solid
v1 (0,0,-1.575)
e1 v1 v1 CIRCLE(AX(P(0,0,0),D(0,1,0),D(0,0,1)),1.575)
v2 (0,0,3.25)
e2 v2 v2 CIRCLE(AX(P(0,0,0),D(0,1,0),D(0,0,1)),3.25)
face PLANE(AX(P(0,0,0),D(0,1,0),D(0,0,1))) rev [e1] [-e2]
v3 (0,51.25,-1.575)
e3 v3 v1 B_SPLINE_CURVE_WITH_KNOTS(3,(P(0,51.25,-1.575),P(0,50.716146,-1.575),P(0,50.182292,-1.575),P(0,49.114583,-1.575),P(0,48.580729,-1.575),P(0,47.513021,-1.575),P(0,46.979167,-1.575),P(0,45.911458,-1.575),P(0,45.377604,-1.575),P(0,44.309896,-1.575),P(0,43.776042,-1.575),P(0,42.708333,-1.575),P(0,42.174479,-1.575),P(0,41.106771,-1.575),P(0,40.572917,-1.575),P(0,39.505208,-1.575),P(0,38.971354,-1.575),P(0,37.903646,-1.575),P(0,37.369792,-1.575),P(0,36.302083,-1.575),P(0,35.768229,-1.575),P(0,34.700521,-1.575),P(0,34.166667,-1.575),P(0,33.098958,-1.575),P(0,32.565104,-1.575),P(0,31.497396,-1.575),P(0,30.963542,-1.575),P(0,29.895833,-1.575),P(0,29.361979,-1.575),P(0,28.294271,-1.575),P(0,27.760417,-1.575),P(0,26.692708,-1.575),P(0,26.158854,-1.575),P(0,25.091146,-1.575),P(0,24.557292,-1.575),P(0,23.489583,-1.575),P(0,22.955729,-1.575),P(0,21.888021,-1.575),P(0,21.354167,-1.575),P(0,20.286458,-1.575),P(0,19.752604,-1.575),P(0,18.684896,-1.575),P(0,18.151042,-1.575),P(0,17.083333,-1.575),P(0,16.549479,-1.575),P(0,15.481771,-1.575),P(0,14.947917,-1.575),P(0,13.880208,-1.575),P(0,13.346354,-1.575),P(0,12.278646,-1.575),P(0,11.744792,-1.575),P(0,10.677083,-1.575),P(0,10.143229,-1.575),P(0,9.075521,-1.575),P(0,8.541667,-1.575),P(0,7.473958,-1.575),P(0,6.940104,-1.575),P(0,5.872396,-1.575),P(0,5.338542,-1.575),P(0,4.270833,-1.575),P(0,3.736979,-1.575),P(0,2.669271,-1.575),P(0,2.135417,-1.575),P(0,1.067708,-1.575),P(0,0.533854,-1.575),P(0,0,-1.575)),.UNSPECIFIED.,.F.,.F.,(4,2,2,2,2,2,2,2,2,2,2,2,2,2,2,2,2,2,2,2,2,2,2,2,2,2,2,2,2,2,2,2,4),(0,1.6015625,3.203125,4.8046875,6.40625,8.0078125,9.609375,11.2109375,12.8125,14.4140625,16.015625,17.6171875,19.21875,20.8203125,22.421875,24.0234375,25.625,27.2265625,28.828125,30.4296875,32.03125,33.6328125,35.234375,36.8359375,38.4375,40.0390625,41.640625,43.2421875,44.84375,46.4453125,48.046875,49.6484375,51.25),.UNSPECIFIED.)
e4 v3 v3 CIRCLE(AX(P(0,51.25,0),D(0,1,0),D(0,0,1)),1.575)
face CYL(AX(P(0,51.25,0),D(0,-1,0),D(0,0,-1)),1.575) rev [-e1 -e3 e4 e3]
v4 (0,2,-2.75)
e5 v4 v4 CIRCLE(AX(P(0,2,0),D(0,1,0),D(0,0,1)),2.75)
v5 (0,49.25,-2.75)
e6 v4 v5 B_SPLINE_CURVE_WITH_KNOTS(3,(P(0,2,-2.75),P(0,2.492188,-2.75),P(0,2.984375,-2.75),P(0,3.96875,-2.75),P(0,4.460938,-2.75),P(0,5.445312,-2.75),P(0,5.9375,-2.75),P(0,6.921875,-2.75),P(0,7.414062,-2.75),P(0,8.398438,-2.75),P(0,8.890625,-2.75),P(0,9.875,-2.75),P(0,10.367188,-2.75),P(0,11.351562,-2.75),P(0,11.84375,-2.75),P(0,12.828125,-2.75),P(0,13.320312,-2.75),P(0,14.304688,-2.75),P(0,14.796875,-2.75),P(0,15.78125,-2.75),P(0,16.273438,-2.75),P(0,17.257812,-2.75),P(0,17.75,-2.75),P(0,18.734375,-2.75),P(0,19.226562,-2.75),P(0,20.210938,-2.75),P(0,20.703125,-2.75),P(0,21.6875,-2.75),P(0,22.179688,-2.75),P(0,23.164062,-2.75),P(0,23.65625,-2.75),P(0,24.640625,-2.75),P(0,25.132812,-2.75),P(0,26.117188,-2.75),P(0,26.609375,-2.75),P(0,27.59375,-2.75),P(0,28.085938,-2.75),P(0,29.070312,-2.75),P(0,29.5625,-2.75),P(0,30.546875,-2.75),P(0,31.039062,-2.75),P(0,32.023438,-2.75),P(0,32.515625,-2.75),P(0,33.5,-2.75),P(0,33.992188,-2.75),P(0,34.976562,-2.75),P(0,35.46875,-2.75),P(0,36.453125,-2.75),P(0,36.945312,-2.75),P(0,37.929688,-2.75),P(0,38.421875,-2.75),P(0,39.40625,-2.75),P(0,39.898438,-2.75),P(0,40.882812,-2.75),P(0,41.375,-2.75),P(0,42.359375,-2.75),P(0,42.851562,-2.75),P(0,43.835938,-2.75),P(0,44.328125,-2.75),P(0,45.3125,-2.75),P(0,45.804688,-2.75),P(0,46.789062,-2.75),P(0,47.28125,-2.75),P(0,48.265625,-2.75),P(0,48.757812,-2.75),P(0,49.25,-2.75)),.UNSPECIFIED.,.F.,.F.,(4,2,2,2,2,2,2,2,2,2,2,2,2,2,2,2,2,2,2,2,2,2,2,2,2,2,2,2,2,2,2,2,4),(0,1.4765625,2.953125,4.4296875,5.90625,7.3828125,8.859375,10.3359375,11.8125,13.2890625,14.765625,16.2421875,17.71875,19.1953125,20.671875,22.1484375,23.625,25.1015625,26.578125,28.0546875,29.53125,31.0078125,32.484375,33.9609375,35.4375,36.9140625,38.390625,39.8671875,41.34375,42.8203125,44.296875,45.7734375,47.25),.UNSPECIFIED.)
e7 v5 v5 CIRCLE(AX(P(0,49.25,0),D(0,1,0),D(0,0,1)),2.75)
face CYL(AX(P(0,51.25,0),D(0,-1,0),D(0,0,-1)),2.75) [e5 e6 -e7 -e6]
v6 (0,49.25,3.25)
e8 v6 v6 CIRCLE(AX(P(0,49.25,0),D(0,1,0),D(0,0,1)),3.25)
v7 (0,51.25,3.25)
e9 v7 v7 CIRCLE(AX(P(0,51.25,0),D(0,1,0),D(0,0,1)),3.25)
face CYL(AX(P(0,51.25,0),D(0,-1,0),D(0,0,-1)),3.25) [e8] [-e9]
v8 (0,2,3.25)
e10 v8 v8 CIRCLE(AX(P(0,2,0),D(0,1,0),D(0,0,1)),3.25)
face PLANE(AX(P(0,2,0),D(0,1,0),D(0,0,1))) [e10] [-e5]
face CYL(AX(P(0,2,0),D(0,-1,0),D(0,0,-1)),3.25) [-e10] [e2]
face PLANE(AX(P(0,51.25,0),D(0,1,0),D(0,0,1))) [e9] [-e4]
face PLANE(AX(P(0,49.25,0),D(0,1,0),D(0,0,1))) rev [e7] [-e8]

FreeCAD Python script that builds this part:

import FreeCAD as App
import Part
import Sketcher

doc = App.newDocument("Part")
body = doc.addObject("PartDesign::Body", "Body")

# Sketch on XZ plane
sketch1 = body.newObject("Sketcher::SketchObject", "Sketch")
sketch1.AttachmentSupport = (doc.getObject("XZ_Plane"), [""])
sketch1.MapMode = "FlatFace"
sketch1.addGeometry(Part.Circle(App.Vector(0, 0, 0), App.Vector(0, 0, 1), 2.8), False)
sketch1.addGeometry(Part.Circle(App.Vector(0, 0, 0), App.Vector(0, 0, 1), 1.6), False)
sketch1.addConstraint(Sketcher.Constraint("Coincident", 0, 3, -1, 1))
sketch1.addConstraint(Sketcher.Constraint("Coincident", 1, 3, -1, 1))
sketch1.addConstraint(Sketcher.Constraint("Diameter", 0, 5.5))
sketch1.addConstraint(Sketcher.Constraint("Diameter", 1, 3.15))
pad1 = body.newObject("PartDesign::Pad", "Pad")
pad1.Profile = sketch1
pad1.Length = 51.25
pad1.Reversed = True

# Sketch on XZ plane
sketch2 = body.newObject("Sketcher::SketchObject", "Sketch001")
sketch2.AttachmentSupport = (doc.getObject("XZ_Plane"), [""])
sketch2.MapMode = "FlatFace"
sketch2.addGeometry(Part.Circle(App.Vector(0, 0, 0), App.Vector(0, 0, 1), 3.2), False)
sketch2.addGeometry(Part.Circle(App.Vector(0, 0, 0), App.Vector(0, 0, 1), 2.8), False)
sketch2.addConstraint(Sketcher.Constraint("Coincident", 0, 3, -1, 1))
sketch2.addConstraint(Sketcher.Constraint("Coincident", 1, 3, -1, 1))
sketch2.addConstraint(Sketcher.Constraint("Diameter", 0, 6.5))
sketch2.addConstraint(Sketcher.Constraint("Diameter", 1, 5.5))
pad2 = body.newObject("PartDesign::Pad", "Pad001")
pad2.Profile = sketch2
pad2.Length = 2
pad2.Reversed = True

# Sketch on XZ plane
sketch3 = body.newObject("Sketcher::SketchObject", "Sketch002")
sketch3.AttachmentSupport = (doc.getObject("XZ_Plane"), [""])
sketch3.MapMode = "FlatFace"
sketch3.AttachmentOffset = App.Placement(App.Vector(0, 0, -49.25), App.Rotation())
sketch3.addGeometry(Part.Circle(App.Vector(0, 0, 0), App.Vector(0, 0, 1), 3.2), False)
sketch3.addGeometry(Part.Circle(App.Vector(0, 0, 0), App.Vector(0, 0, 1), 2.8), False)
sketch3.addConstraint(Sketcher.Constraint("Coincident", 0, 3, -1, 1))
sketch3.addConstraint(Sketcher.Constraint("Coincident", 1, 3, -1, 1))
sketch3.addConstraint(Sketcher.Constraint("Diameter", 0, 6.5))
sketch3.addConstraint(Sketcher.Constraint("Diameter", 1, 5.5))
pad3 = body.newObject("PartDesign::Pad", "Pad002")
pad3.Profile = sketch3
pad3.Length = 2
pad3.Reversed = True

doc.recompute()
